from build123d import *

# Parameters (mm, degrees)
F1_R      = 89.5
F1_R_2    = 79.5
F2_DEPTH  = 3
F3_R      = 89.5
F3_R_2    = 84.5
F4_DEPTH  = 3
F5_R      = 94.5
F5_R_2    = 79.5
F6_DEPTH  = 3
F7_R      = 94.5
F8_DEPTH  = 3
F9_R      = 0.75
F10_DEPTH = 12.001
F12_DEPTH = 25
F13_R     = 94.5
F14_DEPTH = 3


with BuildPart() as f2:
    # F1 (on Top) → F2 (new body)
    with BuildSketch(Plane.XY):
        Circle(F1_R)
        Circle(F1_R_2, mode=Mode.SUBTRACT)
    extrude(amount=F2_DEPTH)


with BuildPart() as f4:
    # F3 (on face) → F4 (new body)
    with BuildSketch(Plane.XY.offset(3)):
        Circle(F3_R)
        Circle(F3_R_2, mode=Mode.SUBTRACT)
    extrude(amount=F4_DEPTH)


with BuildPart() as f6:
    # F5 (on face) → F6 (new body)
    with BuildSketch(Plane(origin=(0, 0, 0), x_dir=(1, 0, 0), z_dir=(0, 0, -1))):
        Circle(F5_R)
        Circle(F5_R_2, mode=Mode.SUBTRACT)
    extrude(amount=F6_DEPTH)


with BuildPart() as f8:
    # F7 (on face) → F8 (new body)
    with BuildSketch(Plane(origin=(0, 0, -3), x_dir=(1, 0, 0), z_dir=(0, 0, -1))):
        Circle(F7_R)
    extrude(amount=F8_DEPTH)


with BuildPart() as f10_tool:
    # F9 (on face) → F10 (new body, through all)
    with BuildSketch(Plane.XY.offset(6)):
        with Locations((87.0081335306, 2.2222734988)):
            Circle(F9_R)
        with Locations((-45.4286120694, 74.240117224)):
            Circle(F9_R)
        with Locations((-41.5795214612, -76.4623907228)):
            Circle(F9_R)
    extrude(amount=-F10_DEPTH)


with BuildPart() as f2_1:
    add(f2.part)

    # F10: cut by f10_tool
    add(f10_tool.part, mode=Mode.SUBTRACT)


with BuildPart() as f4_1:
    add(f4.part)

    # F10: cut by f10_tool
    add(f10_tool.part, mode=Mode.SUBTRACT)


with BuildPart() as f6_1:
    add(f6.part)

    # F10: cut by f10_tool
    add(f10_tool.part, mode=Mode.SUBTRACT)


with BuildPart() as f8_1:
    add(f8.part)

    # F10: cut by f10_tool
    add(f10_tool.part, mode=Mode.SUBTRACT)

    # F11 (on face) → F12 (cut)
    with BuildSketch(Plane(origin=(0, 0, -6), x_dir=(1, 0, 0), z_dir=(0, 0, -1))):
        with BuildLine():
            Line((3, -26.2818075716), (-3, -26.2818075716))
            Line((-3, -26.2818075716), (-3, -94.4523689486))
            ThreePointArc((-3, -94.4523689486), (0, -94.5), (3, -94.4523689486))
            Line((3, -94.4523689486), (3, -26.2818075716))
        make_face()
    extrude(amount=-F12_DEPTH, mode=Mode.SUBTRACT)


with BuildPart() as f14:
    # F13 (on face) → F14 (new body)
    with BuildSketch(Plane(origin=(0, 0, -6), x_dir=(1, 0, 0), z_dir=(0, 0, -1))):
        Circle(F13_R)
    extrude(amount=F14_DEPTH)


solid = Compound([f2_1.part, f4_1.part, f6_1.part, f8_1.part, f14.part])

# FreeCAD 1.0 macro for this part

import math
import FreeCAD as App
import Part
import Sketcher
Q = App.Units.Quantity

doc = App.newDocument("Part")
body = doc.addObject("PartDesign::Body", "Body")

sketch1 = body.newObject("Sketcher::SketchObject", "Sketch")
sketch1.AttachmentSupport = (doc.getObject("XY_Plane"), [""])
sketch1.MapMode = "FlatFace"
sketch1.addGeometry([
    Part.Circle(App.Vector(0, 0, 0), App.Vector(0, 0, 1), 90),
    Part.Circle(App.Vector(0, 0, 0), App.Vector(0, 0, 1), 80),
], False)
sketch1.addConstraint([
    Sketcher.Constraint("Coincident", 0, 3, -1, 1),
    Sketcher.Constraint("Coincident", 1, 3, -1, 1),
    Sketcher.Constraint("Diameter", 0, Q("179 mm")),
    Sketcher.Constraint("Diameter", 1, Q("159 mm")),
])
pad1 = body.newObject("PartDesign::Pad", "Pad")
pad1.Profile = sketch1
pad1.Length = 3
body2 = doc.addObject("PartDesign::Body", "Body001")

sketch2 = body2.newObject("Sketcher::SketchObject", "Sketch001")
sketch2.AttachmentSupport = (doc.getObject("XY_Plane001"), [""])
sketch2.MapMode = "FlatFace"
sketch2.AttachmentOffset = App.Placement(App.Vector(0, 0, 3), App.Rotation())
sketch2.addGeometry([
    Part.Circle(App.Vector(0, 0, 0), App.Vector(0, 0, 1), 90),
    Part.Circle(App.Vector(0, 0, 0), App.Vector(0, 0, 1), 84),
], False)
sketch2.addConstraint([
    Sketcher.Constraint("Coincident", 0, 3, -1, 1),
    Sketcher.Constraint("Coincident", 1, 3, -1, 1),
    Sketcher.Constraint("Diameter", 0, Q("179 mm")),
    Sketcher.Constraint("Diameter", 1, Q("169 mm")),
])
pad2 = body2.newObject("PartDesign::Pad", "Pad001")
pad2.Profile = sketch2
pad2.Length = 3
body3 = doc.addObject("PartDesign::Body", "Body002")

sketch3 = body3.newObject("Sketcher::SketchObject", "Sketch002")
sketch3.AttachmentSupport = (doc.getObject("XY_Plane002"), [""])
sketch3.MapMode = "FlatFace"
sketch3.addGeometry([
    Part.Circle(App.Vector(0, 0, 0), App.Vector(0, 0, 1), 94),
    Part.Circle(App.Vector(0, 0, 0), App.Vector(0, 0, 1), 80),
], False)
sketch3.addConstraint([
    Sketcher.Constraint("Coincident", 0, 3, -1, 1),
    Sketcher.Constraint("Coincident", 1, 3, -1, 1),
    Sketcher.Constraint("Diameter", 0, Q("189 mm")),
    Sketcher.Constraint("Diameter", 1, Q("159 mm")),
])
pad3 = body3.newObject("PartDesign::Pad", "Pad002")
pad3.Profile = sketch3
pad3.Length = 3
pad3.Reversed = True
body4 = doc.addObject("PartDesign::Body", "Body003")

sketch4 = body4.newObject("Sketcher::SketchObject", "Sketch003")
sketch4.AttachmentSupport = (doc.getObject("XY_Plane003"), [""])
sketch4.MapMode = "FlatFace"
sketch4.AttachmentOffset = App.Placement(App.Vector(0, 0, -3), App.Rotation())
sketch4.addGeometry(Part.Circle(App.Vector(0, 0, 0), App.Vector(0, 0, 1), 94), False)
sketch4.addConstraint([
    Sketcher.Constraint("Coincident", 0, 3, -1, 1),
    Sketcher.Constraint("Diameter", 0, Q("189 mm")),
])
pad4 = body4.newObject("PartDesign::Pad", "Pad003")
pad4.Profile = sketch4
pad4.Length = 3
pad4.Reversed = True
body5 = doc.addObject("PartDesign::Body", "Body004")
body5.AllowCompound = True

sketch5 = body5.newObject("Sketcher::SketchObject", "Sketch004")
sketch5.AttachmentSupport = (doc.getObject("XY_Plane004"), [""])
sketch5.MapMode = "FlatFace"
sketch5.AttachmentOffset = App.Placement(App.Vector(0, 0, 6), App.Rotation())
sketch5.addGeometry([
    Part.Circle(App.Vector(87, 2.2, 0), App.Vector(0, 0, 1), 0.8),
    Part.Circle(App.Vector(-45.4, 74.2, 0), App.Vector(0, 0, 1), 0.8),
    Part.Circle(App.Vector(-41.6, -76.5, 0), App.Vector(0, 0, 1), 0.8),
], False)
sketch5.addConstraint([
    Sketcher.Constraint("Equal", 0, 1),
    Sketcher.Constraint("Equal", 1, 2),
    Sketcher.Constraint("Diameter", 0, Q("1.5 mm")),
    Sketcher.Constraint("DistanceX", 2, 3, -1, 1, Q("41.579521 mm")),
    Sketcher.Constraint("DistanceY", 2, 3, -1, 1, Q("76.462391 mm")),
    Sketcher.Constraint("DistanceX", 1, 3, 2, 3, Q("3.849091 mm")),
    Sketcher.Constraint("DistanceX", -1, 1, 0, 3, Q("87.008134 mm")),
    Sketcher.Constraint("DistanceY", -1, 1, 0, 3, Q("2.222273 mm")),
    Sketcher.Constraint("DistanceY", -1, 1, 1, 3, Q("74.240117 mm")),
])
pad5 = body5.newObject("PartDesign::Pad", "Pad004")
pad5.Profile = sketch5
pad5.Length = 12.001
pad5.Reversed = True
doc.recompute()

body6 = doc.addObject("PartDesign::Body", "Body005")
body6.BaseFeature = body5
boolean = body.newObject("PartDesign::Boolean", "Boolean")
boolean.Type = "Cut"
boolean.addObjects([body6])
doc.recompute()

body7 = doc.addObject("PartDesign::Body", "Body006")
body7.BaseFeature = body5
boolean2 = body2.newObject("PartDesign::Boolean", "Boolean001")
boolean2.Type = "Cut"
boolean2.addObjects([body7])
doc.recompute()

body8 = doc.addObject("PartDesign::Body", "Body007")
body8.BaseFeature = body5
boolean3 = body3.newObject("PartDesign::Boolean", "Boolean002")
boolean3.Type = "Cut"
boolean3.addObjects([body8])
doc.recompute()

boolean4 = body4.newObject("PartDesign::Boolean", "Boolean003")
boolean4.Type = "Cut"
boolean4.addObjects([body5])

sketch6 = body4.newObject("Sketcher::SketchObject", "Sketch005")
sketch6.AttachmentSupport = (doc.getObject("XY_Plane003"), [""])
sketch6.MapMode = "FlatFace"
sketch6.AttachmentOffset = App.Placement(App.Vector(0, 0, -6), App.Rotation())
sketch6.addGeometry([
    Part.LineSegment(App.Vector(3, 26, 0), App.Vector(-3, 26, 0)),
    Part.LineSegment(App.Vector(-3, 26, 0), App.Vector(-3, 94, 0)),
    Part.ArcOfCircle(Part.Circle(App.Vector(0, 0, 0), App.Vector(0, 0, 1), 95), math.radians(88.18), math.radians(91.82)),
    Part.LineSegment(App.Vector(3, 94, 0), App.Vector(3, 26, 0)),
], False)
sketch6.addConstraint([
    Sketcher.Constraint("Coincident", 0, 2, 1, 1),
    Sketcher.Constraint("Coincident", 1, 2, 2, 2),
    Sketcher.Constraint("Coincident", 2, 1, 3, 1),
    Sketcher.Constraint("Coincident", 3, 2, 0, 1),
    Sketcher.Constraint("Horizontal", 0),
    Sketcher.Constraint("Vertical", 1),
    Sketcher.Constraint("Vertical", 3),
    Sketcher.Constraint("Coincident", 2, 3, -1, 1),
    Sketcher.Constraint("Horizontal", 1, 2, 2, 1),
    Sketcher.Constraint("Radius", 2, Q("94.5 mm")),
    Sketcher.Constraint("DistanceX", 0, 2, 0, 1, Q("6 mm")),
    Sketcher.Constraint("DistanceY", 1, 1, 1, 2, Q("68.170561 mm")),
])
pocket1 = body4.newObject("PartDesign::Pocket", "Pocket")
pocket1.Profile = sketch6
pocket1.Length = 25
pocket1.Reversed = True
body9 = doc.addObject("PartDesign::Body", "Body008")

sketch7 = body9.newObject("Sketcher::SketchObject", "Sketch006")
sketch7.AttachmentSupport = (doc.getObject("XY_Plane008"), [""])
sketch7.MapMode = "FlatFace"
sketch7.AttachmentOffset = App.Placement(App.Vector(0, 0, -6), App.Rotation())
sketch7.addGeometry(Part.Circle(App.Vector(0, 0, 0), App.Vector(0, 0, 1), 94), False)
sketch7.addConstraint([
    Sketcher.Constraint("Coincident", 0, 3, -1, 1),
    Sketcher.Constraint("Diameter", 0, Q("189 mm")),
])
pad6 = body9.newObject("PartDesign::Pad", "Pad005")
pad6.Profile = sketch7
pad6.Length = 3
pad6.Reversed = True

doc.recompute()
